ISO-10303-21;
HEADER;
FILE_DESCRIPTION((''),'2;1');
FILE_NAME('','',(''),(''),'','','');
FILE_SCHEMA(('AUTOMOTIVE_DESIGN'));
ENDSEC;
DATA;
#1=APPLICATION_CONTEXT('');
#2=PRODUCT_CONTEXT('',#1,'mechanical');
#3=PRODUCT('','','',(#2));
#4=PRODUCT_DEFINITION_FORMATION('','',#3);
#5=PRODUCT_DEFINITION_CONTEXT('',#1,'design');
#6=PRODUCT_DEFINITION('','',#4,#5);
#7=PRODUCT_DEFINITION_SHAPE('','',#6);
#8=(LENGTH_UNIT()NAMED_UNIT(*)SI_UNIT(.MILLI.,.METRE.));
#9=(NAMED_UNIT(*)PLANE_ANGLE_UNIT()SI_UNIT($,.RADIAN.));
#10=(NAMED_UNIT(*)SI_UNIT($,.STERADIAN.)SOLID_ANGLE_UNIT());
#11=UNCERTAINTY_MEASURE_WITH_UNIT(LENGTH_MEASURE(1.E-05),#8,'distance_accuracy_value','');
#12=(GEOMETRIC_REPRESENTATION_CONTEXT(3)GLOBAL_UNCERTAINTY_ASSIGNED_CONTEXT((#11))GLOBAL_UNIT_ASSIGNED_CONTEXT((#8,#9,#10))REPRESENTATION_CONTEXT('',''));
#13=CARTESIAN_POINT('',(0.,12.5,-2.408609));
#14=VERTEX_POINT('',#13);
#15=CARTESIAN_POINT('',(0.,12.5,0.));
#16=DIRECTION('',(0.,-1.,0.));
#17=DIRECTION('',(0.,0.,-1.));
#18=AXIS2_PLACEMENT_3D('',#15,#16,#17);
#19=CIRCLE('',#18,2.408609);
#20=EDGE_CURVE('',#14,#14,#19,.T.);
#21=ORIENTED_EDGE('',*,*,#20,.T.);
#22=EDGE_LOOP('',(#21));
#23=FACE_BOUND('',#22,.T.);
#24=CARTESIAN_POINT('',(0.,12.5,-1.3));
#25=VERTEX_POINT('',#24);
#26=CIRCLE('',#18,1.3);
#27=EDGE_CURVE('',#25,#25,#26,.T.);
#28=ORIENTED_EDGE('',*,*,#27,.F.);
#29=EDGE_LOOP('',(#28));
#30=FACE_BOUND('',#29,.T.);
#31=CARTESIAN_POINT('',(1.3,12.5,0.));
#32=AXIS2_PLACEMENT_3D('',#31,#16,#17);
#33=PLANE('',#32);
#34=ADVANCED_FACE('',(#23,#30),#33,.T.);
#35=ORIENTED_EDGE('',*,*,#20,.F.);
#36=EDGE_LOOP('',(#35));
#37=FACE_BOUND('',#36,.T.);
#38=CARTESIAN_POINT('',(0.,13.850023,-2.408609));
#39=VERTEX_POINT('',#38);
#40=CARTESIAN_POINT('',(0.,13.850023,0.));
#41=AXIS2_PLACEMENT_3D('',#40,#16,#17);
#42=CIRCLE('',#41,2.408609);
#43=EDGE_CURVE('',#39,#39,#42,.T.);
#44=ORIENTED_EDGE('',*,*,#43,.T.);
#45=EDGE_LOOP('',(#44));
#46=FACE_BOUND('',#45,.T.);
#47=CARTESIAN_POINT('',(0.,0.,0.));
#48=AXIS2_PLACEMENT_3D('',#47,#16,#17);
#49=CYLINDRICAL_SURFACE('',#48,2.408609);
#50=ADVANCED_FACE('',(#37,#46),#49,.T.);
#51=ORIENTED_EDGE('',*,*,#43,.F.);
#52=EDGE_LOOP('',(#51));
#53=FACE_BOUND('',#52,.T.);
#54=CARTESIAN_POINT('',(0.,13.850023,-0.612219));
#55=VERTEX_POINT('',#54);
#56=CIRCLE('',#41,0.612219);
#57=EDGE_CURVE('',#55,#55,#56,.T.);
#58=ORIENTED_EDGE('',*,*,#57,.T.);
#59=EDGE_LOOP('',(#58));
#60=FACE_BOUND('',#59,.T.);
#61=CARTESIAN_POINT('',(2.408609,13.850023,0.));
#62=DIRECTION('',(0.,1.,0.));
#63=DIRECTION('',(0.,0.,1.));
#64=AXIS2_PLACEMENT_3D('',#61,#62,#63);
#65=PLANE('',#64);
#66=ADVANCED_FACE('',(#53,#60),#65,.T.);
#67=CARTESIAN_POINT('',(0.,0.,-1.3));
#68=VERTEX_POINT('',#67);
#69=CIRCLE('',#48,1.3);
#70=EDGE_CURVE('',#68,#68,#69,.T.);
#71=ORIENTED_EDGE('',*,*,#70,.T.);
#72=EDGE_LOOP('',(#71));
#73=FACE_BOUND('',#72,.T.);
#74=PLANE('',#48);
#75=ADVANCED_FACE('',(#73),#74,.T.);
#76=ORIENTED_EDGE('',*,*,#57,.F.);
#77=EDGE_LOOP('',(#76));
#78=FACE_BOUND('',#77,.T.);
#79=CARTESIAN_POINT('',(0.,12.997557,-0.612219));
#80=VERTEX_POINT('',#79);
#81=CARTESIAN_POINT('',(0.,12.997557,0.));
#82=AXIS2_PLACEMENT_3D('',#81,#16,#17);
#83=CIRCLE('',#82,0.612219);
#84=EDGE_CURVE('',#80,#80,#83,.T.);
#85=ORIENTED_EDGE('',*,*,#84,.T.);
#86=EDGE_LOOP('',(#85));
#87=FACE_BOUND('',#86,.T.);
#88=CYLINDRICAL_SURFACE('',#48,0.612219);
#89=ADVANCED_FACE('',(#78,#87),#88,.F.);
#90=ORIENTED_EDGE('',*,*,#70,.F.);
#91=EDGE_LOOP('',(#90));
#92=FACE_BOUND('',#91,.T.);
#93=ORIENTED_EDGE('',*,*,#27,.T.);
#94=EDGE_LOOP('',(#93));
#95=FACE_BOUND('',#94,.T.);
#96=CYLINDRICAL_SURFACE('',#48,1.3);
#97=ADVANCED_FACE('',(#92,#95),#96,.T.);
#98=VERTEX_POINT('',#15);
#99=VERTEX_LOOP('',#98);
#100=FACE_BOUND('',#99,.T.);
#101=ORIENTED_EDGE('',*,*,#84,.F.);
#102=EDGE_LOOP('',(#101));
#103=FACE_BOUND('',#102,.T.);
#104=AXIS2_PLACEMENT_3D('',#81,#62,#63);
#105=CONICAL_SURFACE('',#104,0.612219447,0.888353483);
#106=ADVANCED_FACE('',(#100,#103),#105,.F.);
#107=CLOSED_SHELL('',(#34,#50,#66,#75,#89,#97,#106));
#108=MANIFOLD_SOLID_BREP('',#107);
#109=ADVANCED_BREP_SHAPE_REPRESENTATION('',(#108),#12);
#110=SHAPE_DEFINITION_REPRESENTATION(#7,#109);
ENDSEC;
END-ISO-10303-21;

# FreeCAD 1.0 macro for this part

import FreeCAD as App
import Part
import Sketcher
from FreeCAD import Vector
Q = App.Units.Quantity


def add_polygon(sketch, points):
    """Adds a closed chain of lines whose ends are joined by coincident constraints."""
    first, n = sketch.GeometryCount, len(points)
    for a, b in zip(points, points[1:] + points[:1]):
        sketch.addGeometry(Part.LineSegment(App.Vector(*a, 0), App.Vector(*b, 0)), False)
    for i in range(n):
        sketch.addConstraint(Sketcher.Constraint("Coincident", first + i, 2, first + (i + 1) % n, 1))

doc = App.newDocument("Part")
body = doc.addObject("PartDesign::Body", "Body")

sketch1 = body.newObject("Sketcher::SketchObject", "Sketch")
sketch1.AttachmentSupport = (doc.getObject("XY_Plane"), [""])
sketch1.MapMode = "FlatFace"
add_polygon(sketch1, [(0, 0), (1.3, 0), (1.3, 12.5), (2.4, 12.5), (2.4, 13.9), (0.6, 13.9), (0.6, 13), (0, 12.5)])
sketch1.addConstraint(Sketcher.Constraint("Horizontal", 0))
sketch1.addConstraint(Sketcher.Constraint("Vertical", 1))
sketch1.addConstraint(Sketcher.Constraint("Horizontal", 2))
sketch1.addConstraint(Sketcher.Constraint("Vertical", 3))
sketch1.addConstraint(Sketcher.Constraint("Horizontal", 4))
sketch1.addConstraint(Sketcher.Constraint("Vertical", 5))
sketch1.addConstraint(Sketcher.Constraint("Vertical", 7))
sketch1.addConstraint(Sketcher.Constraint("Coincident", 7, 2, -1, 1))
sketch1.addConstraint(Sketcher.Constraint("Horizontal", 2, 2, 6, 2))
sketch1.addConstraint(Sketcher.Constraint("DistanceX", 0, 1, 0, 2, Q("1.3 mm")))
sketch1.addConstraint(Sketcher.Constraint("DistanceY", 1, 1, 1, 2, Q("12.5 mm")))
sketch1.addConstraint(Sketcher.Constraint("DistanceX", 2, 1, 2, 2, Q("1.108609 mm")))
sketch1.addConstraint(Sketcher.Constraint("DistanceX", 4, 2, 4, 1, Q("1.79639 mm")))
sketch1.addConstraint(Sketcher.Constraint("DistanceY", 3, 1, 3, 2, Q("1.350023 mm")))
sketch1.addConstraint(Sketcher.Constraint("DistanceY", 5, 2, 5, 1, Q("0.852467 mm")))
revolution = body.newObject("PartDesign::Revolution", "Revolution")
revolution.Profile = sketch1
revolution.ReferenceAxis = (sketch1, ["V_Axis"])
revolution.Angle = 360

doc.recompute()
